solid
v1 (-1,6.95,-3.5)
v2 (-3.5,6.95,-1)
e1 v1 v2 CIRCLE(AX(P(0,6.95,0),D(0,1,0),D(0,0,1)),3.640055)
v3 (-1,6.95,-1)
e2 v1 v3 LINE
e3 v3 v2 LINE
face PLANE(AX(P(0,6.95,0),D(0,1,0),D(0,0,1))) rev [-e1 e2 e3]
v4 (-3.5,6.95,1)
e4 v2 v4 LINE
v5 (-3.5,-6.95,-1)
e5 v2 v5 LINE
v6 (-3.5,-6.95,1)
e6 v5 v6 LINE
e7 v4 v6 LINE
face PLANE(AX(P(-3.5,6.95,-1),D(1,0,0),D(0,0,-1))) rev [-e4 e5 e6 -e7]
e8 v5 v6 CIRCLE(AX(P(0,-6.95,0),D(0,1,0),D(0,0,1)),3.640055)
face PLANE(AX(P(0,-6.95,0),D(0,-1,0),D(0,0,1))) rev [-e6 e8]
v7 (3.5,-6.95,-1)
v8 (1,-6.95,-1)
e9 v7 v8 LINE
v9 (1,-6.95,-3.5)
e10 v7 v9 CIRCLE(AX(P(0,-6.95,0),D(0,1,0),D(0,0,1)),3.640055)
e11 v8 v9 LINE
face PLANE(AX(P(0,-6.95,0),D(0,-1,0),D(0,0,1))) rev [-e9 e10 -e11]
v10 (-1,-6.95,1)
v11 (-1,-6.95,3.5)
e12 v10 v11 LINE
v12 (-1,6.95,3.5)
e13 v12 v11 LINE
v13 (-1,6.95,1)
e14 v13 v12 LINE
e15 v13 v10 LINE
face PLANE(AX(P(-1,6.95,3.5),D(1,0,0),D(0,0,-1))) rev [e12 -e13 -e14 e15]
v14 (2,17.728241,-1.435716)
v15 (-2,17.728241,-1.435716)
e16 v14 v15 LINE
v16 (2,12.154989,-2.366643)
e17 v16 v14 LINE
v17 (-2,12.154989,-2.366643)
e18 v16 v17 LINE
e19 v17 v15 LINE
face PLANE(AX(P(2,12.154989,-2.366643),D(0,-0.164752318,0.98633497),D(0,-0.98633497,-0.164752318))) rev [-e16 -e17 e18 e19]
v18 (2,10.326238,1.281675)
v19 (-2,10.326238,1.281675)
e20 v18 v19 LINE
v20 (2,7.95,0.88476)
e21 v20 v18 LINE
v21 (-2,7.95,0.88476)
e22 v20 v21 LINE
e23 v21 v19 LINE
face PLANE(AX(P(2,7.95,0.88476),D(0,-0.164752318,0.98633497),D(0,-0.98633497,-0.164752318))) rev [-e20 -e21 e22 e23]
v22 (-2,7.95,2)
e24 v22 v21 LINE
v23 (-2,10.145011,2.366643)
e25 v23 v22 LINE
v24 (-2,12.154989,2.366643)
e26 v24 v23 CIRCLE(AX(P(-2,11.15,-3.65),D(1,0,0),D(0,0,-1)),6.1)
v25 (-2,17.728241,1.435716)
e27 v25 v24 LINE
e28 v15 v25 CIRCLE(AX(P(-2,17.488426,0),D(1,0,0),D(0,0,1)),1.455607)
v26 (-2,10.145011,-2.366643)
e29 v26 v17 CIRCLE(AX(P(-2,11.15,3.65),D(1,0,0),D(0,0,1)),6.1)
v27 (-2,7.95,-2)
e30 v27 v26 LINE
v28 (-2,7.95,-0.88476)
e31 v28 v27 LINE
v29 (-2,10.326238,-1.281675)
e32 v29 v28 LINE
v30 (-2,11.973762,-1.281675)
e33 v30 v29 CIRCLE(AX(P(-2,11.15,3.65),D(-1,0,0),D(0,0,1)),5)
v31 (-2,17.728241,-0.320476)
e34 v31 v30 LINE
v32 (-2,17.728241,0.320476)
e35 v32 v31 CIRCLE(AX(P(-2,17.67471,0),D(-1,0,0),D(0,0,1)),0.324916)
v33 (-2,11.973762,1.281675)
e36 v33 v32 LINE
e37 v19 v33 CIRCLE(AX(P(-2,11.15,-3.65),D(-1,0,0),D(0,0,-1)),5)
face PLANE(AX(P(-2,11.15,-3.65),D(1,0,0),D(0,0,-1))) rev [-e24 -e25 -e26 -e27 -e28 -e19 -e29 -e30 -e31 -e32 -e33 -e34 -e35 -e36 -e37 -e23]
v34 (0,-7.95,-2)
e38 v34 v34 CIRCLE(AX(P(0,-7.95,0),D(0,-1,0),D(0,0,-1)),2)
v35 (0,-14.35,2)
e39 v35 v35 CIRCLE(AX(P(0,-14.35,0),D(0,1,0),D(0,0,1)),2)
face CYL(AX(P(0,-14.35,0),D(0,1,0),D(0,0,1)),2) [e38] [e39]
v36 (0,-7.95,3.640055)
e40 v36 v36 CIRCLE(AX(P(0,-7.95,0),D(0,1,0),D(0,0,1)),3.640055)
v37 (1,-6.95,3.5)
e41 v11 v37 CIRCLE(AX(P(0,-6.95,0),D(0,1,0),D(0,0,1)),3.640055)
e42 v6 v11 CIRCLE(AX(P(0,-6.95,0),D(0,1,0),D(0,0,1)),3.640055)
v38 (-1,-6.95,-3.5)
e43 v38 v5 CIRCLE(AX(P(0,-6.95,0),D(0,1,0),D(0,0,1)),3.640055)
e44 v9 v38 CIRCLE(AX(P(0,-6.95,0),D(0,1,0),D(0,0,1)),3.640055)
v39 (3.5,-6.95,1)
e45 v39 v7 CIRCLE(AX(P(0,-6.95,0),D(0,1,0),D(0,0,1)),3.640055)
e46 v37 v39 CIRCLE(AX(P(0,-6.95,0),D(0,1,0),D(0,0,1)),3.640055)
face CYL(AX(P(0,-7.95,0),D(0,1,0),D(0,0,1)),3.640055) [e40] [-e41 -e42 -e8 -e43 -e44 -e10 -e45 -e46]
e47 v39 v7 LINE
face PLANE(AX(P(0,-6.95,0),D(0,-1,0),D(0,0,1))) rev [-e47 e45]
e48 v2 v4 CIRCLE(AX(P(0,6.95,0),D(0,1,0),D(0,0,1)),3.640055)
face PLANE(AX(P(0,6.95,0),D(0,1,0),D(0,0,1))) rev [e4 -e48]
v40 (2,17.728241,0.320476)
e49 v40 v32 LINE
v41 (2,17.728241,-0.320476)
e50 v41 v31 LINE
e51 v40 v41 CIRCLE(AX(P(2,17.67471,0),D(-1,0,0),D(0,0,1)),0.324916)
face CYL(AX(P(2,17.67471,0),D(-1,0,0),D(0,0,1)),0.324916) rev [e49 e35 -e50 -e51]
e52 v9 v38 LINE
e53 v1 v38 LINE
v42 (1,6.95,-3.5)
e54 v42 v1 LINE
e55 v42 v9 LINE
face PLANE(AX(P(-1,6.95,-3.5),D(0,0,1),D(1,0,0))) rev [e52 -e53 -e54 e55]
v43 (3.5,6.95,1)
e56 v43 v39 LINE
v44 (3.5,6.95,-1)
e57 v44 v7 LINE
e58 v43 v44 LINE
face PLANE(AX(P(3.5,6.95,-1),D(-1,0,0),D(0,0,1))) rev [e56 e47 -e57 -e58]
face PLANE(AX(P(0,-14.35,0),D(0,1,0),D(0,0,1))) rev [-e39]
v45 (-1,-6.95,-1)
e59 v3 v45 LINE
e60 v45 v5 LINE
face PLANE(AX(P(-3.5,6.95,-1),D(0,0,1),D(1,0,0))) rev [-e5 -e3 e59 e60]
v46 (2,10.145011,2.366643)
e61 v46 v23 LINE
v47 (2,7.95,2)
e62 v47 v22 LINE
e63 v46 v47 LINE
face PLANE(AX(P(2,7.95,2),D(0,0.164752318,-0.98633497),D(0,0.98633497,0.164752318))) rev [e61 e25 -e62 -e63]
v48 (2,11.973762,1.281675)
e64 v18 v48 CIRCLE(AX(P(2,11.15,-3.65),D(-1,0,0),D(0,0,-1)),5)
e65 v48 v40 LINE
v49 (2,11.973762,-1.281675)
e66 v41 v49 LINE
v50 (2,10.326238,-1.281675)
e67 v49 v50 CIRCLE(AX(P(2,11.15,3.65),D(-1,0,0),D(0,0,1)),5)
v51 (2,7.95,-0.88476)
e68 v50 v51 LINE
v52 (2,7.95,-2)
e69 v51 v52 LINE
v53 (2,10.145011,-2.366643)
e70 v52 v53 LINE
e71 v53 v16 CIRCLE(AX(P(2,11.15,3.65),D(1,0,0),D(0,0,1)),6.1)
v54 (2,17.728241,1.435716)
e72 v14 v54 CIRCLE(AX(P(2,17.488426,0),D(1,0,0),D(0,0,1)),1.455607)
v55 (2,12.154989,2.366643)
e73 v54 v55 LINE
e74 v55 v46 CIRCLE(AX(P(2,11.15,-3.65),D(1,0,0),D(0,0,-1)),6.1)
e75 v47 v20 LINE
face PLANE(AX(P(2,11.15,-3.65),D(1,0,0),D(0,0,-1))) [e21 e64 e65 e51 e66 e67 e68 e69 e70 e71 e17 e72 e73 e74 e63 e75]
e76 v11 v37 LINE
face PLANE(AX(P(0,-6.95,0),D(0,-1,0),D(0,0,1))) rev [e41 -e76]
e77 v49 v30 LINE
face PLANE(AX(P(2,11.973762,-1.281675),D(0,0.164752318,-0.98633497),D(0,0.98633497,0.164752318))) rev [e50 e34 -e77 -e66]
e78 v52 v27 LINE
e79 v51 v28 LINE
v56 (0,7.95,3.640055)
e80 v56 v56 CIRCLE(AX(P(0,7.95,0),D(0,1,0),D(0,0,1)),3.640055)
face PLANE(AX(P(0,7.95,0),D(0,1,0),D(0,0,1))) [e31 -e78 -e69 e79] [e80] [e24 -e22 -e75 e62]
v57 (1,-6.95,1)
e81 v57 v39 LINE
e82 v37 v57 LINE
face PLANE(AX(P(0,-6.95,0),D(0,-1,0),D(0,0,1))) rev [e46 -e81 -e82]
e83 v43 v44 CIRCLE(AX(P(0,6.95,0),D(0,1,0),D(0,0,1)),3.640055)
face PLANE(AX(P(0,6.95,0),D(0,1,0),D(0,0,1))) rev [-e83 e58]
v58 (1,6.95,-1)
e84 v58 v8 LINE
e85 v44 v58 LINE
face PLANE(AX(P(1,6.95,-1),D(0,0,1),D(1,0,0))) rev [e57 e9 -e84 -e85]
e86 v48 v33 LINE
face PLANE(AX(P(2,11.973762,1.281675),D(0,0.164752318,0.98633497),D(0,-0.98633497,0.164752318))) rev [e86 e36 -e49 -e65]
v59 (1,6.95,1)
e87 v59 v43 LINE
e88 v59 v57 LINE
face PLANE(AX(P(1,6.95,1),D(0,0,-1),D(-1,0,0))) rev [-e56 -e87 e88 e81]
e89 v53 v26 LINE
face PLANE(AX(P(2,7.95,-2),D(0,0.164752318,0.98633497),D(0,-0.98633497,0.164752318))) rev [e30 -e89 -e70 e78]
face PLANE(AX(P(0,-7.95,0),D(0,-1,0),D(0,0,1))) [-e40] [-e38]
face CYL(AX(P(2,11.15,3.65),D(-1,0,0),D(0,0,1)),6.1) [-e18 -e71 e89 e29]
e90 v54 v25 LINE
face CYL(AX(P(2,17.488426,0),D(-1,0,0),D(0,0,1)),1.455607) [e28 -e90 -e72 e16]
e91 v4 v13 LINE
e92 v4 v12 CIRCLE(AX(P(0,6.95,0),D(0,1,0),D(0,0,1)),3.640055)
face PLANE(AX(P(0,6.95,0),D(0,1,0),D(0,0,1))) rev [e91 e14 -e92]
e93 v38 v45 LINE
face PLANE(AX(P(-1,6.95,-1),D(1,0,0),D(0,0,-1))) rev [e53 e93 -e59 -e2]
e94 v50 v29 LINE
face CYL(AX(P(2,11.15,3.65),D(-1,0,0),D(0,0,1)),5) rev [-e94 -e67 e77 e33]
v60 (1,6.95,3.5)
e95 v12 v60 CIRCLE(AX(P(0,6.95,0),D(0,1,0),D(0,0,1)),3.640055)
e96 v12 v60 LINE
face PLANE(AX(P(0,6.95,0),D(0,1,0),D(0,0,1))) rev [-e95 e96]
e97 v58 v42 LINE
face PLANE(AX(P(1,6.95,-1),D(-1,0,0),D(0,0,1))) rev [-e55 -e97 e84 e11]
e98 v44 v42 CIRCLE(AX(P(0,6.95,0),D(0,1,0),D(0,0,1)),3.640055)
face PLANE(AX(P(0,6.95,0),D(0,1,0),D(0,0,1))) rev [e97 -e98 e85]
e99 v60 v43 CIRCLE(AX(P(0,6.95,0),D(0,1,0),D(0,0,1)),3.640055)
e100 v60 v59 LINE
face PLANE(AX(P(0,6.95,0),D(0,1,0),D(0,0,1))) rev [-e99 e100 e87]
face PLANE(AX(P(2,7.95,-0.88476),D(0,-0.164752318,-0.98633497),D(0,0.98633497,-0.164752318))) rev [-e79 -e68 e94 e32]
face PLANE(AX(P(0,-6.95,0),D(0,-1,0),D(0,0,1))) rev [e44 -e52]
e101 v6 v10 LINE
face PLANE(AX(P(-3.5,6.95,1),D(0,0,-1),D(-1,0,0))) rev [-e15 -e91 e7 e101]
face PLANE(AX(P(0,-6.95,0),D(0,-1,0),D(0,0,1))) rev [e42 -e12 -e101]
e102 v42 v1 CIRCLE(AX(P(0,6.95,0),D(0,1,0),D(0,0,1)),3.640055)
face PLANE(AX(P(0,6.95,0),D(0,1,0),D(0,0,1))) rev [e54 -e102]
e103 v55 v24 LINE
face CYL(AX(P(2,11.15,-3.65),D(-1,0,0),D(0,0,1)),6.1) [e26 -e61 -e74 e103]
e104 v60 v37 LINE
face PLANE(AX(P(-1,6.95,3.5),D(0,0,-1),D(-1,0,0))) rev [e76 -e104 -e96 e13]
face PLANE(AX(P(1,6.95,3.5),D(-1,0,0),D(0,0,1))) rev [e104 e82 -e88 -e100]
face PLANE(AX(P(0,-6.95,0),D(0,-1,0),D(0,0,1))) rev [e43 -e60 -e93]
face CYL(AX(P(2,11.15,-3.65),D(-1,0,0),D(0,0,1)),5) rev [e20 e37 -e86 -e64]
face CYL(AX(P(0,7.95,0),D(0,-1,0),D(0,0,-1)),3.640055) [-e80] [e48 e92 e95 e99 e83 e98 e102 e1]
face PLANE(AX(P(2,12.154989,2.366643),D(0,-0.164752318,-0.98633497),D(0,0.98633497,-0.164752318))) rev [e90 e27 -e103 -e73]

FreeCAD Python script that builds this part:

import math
import FreeCAD as App
import Part
import Sketcher


def add_polygon(sketch, points):
    """Adds a closed chain of lines whose ends are joined by coincident constraints."""
    first, n = sketch.GeometryCount, len(points)
    for a, b in zip(points, points[1:] + points[:1]):
        sketch.addGeometry(Part.LineSegment(App.Vector(*a, 0), App.Vector(*b, 0)), False)
    for i in range(n):
        sketch.addConstraint(Sketcher.Constraint("Coincident", first + i, 2, first + (i + 1) % n, 1))

doc = App.newDocument("Part")
body = doc.addObject("PartDesign::Body", "Body")

# Sketch on XZ plane
sketch1 = body.newObject("Sketcher::SketchObject", "Sketch")
sketch1.AttachmentSupport = (doc.getObject("XZ_Plane"), [""])
sketch1.MapMode = "FlatFace"
add_polygon(sketch1, [(-1, 3.5), (1, 3.5), (1, 1), (3.5, 1), (3.5, -1), (1, -1), (1, -3.5), (-1, -3.5), (-1, -1), (-3.5, -1), (-3.5, 1), (-1, 1)])  # lines 0-11
sketch1.addConstraint([
    Sketcher.Constraint("Horizontal", 0),
    Sketcher.Constraint("Vertical", 1),
    Sketcher.Constraint("Horizontal", 2),
    Sketcher.Constraint("Vertical", 3),
    Sketcher.Constraint("Horizontal", 4),
    Sketcher.Constraint("Vertical", 5),
    Sketcher.Constraint("Horizontal", 6),
    Sketcher.Constraint("Vertical", 7),
    Sketcher.Constraint("Horizontal", 8),
    Sketcher.Constraint("Vertical", 9),
    Sketcher.Constraint("Horizontal", 10),
    Sketcher.Constraint("Vertical", 11),
    Sketcher.Constraint("Symmetric", 0, 2, 6, 2, -1, 1),
    Sketcher.Constraint("Symmetric", 2, 2, 8, 2, -1, 1),
    Sketcher.Constraint("Symmetric", 4, 2, 10, 2, -1, 1),
    Sketcher.Constraint("Symmetric", 4, 2, 7, 2, -2),
    Sketcher.Constraint("Equal", 10, 1),
    Sketcher.Constraint("Equal", 6, 3),
    Sketcher.Constraint("DistanceX", 0, 1, 0, 2, 2.0),
    Sketcher.Constraint("DistanceX", 2, 1, 2, 2, 2.5),
])
pad1 = body.newObject("PartDesign::Pad", "Pad")
pad1.Profile = sketch1
pad1.Length = 13.9
pad1.Midplane = True

# Sketch on XZ plane
sketch2 = body.newObject("Sketcher::SketchObject", "Sketch001")
sketch2.AttachmentSupport = (doc.getObject("XZ_Plane"), [""])
sketch2.MapMode = "FlatFace"
sketch2.AttachmentOffset = App.Placement(App.Vector(0, 0, -6.95), App.Rotation())
sketch2.addGeometry(Part.Circle(App.Vector(0, 0, 0), App.Vector(0, 0, 1), 3.6), False)
sketch2.addConstraint([
    Sketcher.Constraint("Coincident", 0, 3, -1, 1),
    Sketcher.Constraint("Diameter", 0, 7.28011),
])
pad2 = body.newObject("PartDesign::Pad", "Pad001")
pad2.Profile = sketch2
pad2.Length = 1
pad2.Reversed = True
doc.recompute()

mirrored = body.newObject("PartDesign::Mirrored", "Mirrored")
mirrored.Originals = [pad2]
mirrored.MirrorPlane = (doc.getObject("XZ_Plane"), [""])
body.Tip = mirrored

# Sketch on XZ plane
sketch3 = body.newObject("Sketcher::SketchObject", "Sketch002")
sketch3.AttachmentSupport = (doc.getObject("XZ_Plane"), [""])
sketch3.MapMode = "FlatFace"
sketch3.AttachmentOffset = App.Placement(App.Vector(0, 0, 7.95), App.Rotation())
sketch3.addGeometry(Part.Circle(App.Vector(0, 0, 0), App.Vector(0, 0, 1), 2), False)
sketch3.addConstraint([
    Sketcher.Constraint("Coincident", 0, 3, -1, 1),
    Sketcher.Constraint("Diameter", 0, 4.0),
])
pad3 = body.newObject("PartDesign::Pad", "Pad002")
pad3.Profile = sketch3
pad3.Length = 6.4

# Sketch on YZ plane
sketch4 = body.newObject("Sketcher::SketchObject", "Sketch003")
sketch4.AttachmentSupport = (doc.getObject("YZ_Plane"), [""])
sketch4.MapMode = "FlatFace"
sketch4.addGeometry([
    Part.LineSegment(App.Vector(10.15, 2.37, 0), App.Vector(7.95, 2, 0)),  # 0
    Part.LineSegment(App.Vector(7.95, 2, 0), App.Vector(7.95, 0.88, 0)),  # 1
    Part.LineSegment(App.Vector(7.95, 0.88, 0), App.Vector(10.33, 1.28, 0)),  # 2
    Part.ArcOfCircle(Part.Circle(App.Vector(11.15, -3.65, 0), App.Vector(0, 0, 1), 5), math.radians(80.52), math.radians(99.48)),  # 3
    Part.LineSegment(App.Vector(11.97, 1.28, 0), App.Vector(17.73, 0.32, 0)),  # 4
    Part.ArcOfCircle(Part.Circle(App.Vector(17.67, 0, 0), App.Vector(0, 0, 1), 0.32), math.radians(-81), math.radians(81)),  # 5
    Part.LineSegment(App.Vector(17.73, -0.32, 0), App.Vector(11.97, -1.28, 0)),  # 6
    Part.ArcOfCircle(Part.Circle(App.Vector(11.15, 3.65, 0), App.Vector(0, 0, 1), 5), math.radians(-99.48), math.radians(-80.52)),  # 7
    Part.LineSegment(App.Vector(10.33, -1.28, 0), App.Vector(7.95, -0.88, 0)),  # 8
    Part.LineSegment(App.Vector(7.95, -0.88, 0), App.Vector(7.95, -2, 0)),  # 9
    Part.LineSegment(App.Vector(7.95, -2, 0), App.Vector(10.15, -2.37, 0)),  # 10
    Part.ArcOfCircle(Part.Circle(App.Vector(11.15, 3.65, 0), App.Vector(0, 0, 1), 6.1), math.radians(-99.48), math.radians(-80.52)),  # 11
    Part.LineSegment(App.Vector(12.15, -2.37, 0), App.Vector(17.73, -1.44, 0)),  # 12
    Part.ArcOfCircle(Part.Circle(App.Vector(17.49, 0, 0), App.Vector(0, 0, 1), 1.46), math.radians(-81), math.radians(81)),  # 13
    Part.LineSegment(App.Vector(17.73, 1.44, 0), App.Vector(12.15, 2.37, 0)),  # 14
    Part.ArcOfCircle(Part.Circle(App.Vector(11.15, -3.65, 0), App.Vector(0, 0, 1), 6.1), math.radians(80.52), math.radians(99.48)),  # 15
], False)
sketch4.addConstraint([
    Sketcher.Constraint("Coincident", 0, 2, 1, 1),
    Sketcher.Constraint("Coincident", 1, 2, 2, 1),
    Sketcher.Constraint("Tangent", 2, 2, 3, 2),
    Sketcher.Constraint("Tangent", 3, 1, 4, 1),
    Sketcher.Constraint("Tangent", 4, 2, 5, 2),
    Sketcher.Constraint("Tangent", 5, 1, 6, 1),
    Sketcher.Constraint("Tangent", 6, 2, 7, 2),
    Sketcher.Constraint("Tangent", 7, 1, 8, 1),
    Sketcher.Constraint("Coincident", 8, 2, 9, 1),
    Sketcher.Constraint("Coincident", 9, 2, 10, 1),
    Sketcher.Constraint("Tangent", 10, 2, 11, 1),
    Sketcher.Constraint("Tangent", 11, 2, 12, 1),
    Sketcher.Constraint("Tangent", 12, 2, 13, 1),
    Sketcher.Constraint("Tangent", 13, 2, 14, 1),
    Sketcher.Constraint("Tangent", 14, 2, 15, 1),
    Sketcher.Constraint("Tangent", 15, 2, 0, 1),
    Sketcher.Constraint("Vertical", 1),
    Sketcher.Constraint("Vertical", 9),
    Sketcher.Constraint("Coincident", 11, 3, 7, 3),
    Sketcher.Constraint("Coincident", 15, 3, 3, 3),
    Sketcher.Constraint("Equal", 3, 7),
    Sketcher.Constraint("Equal", 11, 15),
    Sketcher.Constraint("Symmetric", 3, 3, 7, 3, -1),
    Sketcher.Constraint("Symmetric", 1, 2, 8, 2, -1),
    Sketcher.Constraint("PointOnObject", 5, 3, -1),
    Sketcher.Constraint("PointOnObject", 13, 3, -1),
    Sketcher.Constraint("Parallel", 0, 2),
    Sketcher.Constraint("Parallel", 2, 6),
    Sketcher.Constraint("Parallel", 8, 10),
    Sketcher.Constraint("Parallel", 6, 12),
    Sketcher.Constraint("Vertical", 5, 1, 12, 2),
    Sketcher.Constraint("Radius", 3, 5.0),
    Sketcher.Constraint("Radius", 11, 6.1),
    Sketcher.Constraint("DistanceY", -1, 1, 0, 2, 2.0),
    Sketcher.Constraint("DistanceY", 3, 3, 7, 3, 7.3),
    Sketcher.Constraint("DistanceX", 0, 2, 11, 3, 3.2),
    Sketcher.Constraint("DistanceX", -1, 1, 3, 3, 11.15),
    Sketcher.Constraint("Radius", 5, 0.324916),
])
pad4 = body.newObject("PartDesign::Pad", "Pad003")
pad4.Profile = sketch4
pad4.Length = 4
pad4.Midplane = True

doc.recompute()
